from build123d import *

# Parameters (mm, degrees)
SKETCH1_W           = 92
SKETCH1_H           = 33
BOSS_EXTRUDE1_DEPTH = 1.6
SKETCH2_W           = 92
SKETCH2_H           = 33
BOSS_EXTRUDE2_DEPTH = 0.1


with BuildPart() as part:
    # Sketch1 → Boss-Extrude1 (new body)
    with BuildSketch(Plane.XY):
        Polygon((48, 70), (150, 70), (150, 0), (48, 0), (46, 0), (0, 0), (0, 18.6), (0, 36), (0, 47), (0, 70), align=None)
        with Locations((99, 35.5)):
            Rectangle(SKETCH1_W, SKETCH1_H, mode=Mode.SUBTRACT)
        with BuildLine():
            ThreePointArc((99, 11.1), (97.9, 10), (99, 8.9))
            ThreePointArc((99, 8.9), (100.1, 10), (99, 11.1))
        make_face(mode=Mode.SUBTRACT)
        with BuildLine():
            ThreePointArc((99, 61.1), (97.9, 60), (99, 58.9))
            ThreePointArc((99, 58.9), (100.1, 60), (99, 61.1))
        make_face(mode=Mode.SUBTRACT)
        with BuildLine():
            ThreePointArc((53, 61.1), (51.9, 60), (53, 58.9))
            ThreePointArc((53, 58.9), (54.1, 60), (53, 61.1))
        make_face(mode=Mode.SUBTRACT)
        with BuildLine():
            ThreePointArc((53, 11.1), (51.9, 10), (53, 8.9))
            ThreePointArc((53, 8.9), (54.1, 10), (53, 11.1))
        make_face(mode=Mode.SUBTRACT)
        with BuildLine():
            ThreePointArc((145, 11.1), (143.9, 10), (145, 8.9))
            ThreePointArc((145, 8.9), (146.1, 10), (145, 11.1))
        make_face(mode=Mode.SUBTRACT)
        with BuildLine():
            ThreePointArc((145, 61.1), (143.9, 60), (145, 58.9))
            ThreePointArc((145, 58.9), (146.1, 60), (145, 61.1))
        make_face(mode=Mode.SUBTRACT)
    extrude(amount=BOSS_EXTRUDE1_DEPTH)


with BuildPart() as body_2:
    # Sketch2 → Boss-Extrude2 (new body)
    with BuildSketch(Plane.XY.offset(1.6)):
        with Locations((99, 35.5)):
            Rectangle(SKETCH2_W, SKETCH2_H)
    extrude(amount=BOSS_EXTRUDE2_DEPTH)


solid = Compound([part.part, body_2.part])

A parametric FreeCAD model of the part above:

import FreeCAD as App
import Part
import Sketcher
Q = App.Units.Quantity

doc = App.newDocument("Part")
body = doc.addObject("PartDesign::Body", "Body")

# Sketch on XY plane
sketch1 = body.newObject("Sketcher::SketchObject", "Sketch")
sketch1.AttachmentSupport = (doc.getObject("XY_Plane"), [""])
sketch1.MapMode = "FlatFace"
sketch1.addGeometry([
    Part.LineSegment(App.Vector(150, 70, 0), App.Vector(0, 70, 0)),  # 0
    Part.LineSegment(App.Vector(0, 70, 0), App.Vector(0, 0, 0)),  # 1
    Part.LineSegment(App.Vector(0, 0, 0), App.Vector(150, 0, 0)),  # 2
    Part.LineSegment(App.Vector(150, 0, 0), App.Vector(150, 70, 0)),  # 3
    Part.Circle(App.Vector(145, 10, 0), App.Vector(0, 0, 1), 1.1),  # 4
    Part.Circle(App.Vector(99, 10, 0), App.Vector(0, 0, 1), 1.1),  # 5
    Part.Circle(App.Vector(53, 10, 0), App.Vector(0, 0, 1), 1.1),  # 6
    Part.Circle(App.Vector(145, 60, 0), App.Vector(0, 0, 1), 1.1),  # 7
    Part.LineSegment(App.Vector(53, 19, 0), App.Vector(53, 52, 0)),  # 8
    Part.LineSegment(App.Vector(53, 52, 0), App.Vector(145, 52, 0)),  # 9
    Part.LineSegment(App.Vector(145, 52, 0), App.Vector(145, 19, 0)),  # 10
    Part.LineSegment(App.Vector(145, 19, 0), App.Vector(53, 19, 0)),  # 11
    Part.Circle(App.Vector(99, 60, 0), App.Vector(0, 0, 1), 1.1),  # 12
    Part.Circle(App.Vector(53, 60, 0), App.Vector(0, 0, 1), 1.1),  # 13
], False)
sketch1.addConstraint([
    Sketcher.Constraint("Coincident", 0, 2, 1, 1),
    Sketcher.Constraint("Coincident", 1, 2, 2, 1),
    Sketcher.Constraint("Coincident", 2, 2, 3, 1),
    Sketcher.Constraint("Coincident", 3, 2, 0, 1),
    Sketcher.Constraint("Coincident", 8, 2, 9, 1),
    Sketcher.Constraint("Coincident", 9, 2, 10, 1),
    Sketcher.Constraint("Coincident", 10, 2, 11, 1),
    Sketcher.Constraint("Coincident", 11, 2, 8, 1),
    Sketcher.Constraint("Horizontal", 0),
    Sketcher.Constraint("Vertical", 1),
    Sketcher.Constraint("Horizontal", 2),
    Sketcher.Constraint("Vertical", 3),
    Sketcher.Constraint("Vertical", 8),
    Sketcher.Constraint("Horizontal", 9),
    Sketcher.Constraint("Vertical", 10),
    Sketcher.Constraint("Horizontal", 11),
    Sketcher.Constraint("Coincident", 1, 2, -1, 1),
    Sketcher.Constraint("Equal", 4, 5),
    Sketcher.Constraint("Equal", 5, 6),
    Sketcher.Constraint("Equal", 6, 7),
    Sketcher.Constraint("Equal", 7, 12),
    Sketcher.Constraint("Equal", 12, 13),
    Sketcher.Constraint("Horizontal", 4, 3, 5, 3),
    Sketcher.Constraint("Horizontal", 5, 3, 6, 3),
    Sketcher.Constraint("Horizontal", 7, 3, 12, 3),
    Sketcher.Constraint("Horizontal", 12, 3, 13, 3),
    Sketcher.Constraint("Vertical", 4, 3, 7, 3),
    Sketcher.Constraint("Vertical", 5, 3, 12, 3),
    Sketcher.Constraint("Vertical", 6, 3, 13, 3),
    Sketcher.Constraint("Vertical", 13, 3, 8, 2),
    Sketcher.Constraint("Vertical", 7, 3, 9, 2),
    Sketcher.Constraint("Diameter", 4, Q("2.2 mm")),
    Sketcher.Constraint("DistanceX", 0, 2, 0, 1, Q("150 mm")),
    Sketcher.Constraint("DistanceX", 9, 1, 9, 2, Q("92 mm")),
    Sketcher.Constraint("DistanceY", 1, 2, 1, 1, Q("70 mm")),
    Sketcher.Constraint("DistanceY", 8, 1, 8, 2, Q("33 mm")),
    Sketcher.Constraint("DistanceX", -1, 1, 4, 3, Q("145 mm")),
    Sketcher.Constraint("DistanceY", -1, 1, 4, 3, Q("10 mm")),
    Sketcher.Constraint("DistanceX", -1, 1, 5, 3, Q("99 mm")),
    Sketcher.Constraint("DistanceY", -1, 1, 7, 3, Q("60 mm")),
    Sketcher.Constraint("DistanceY", -1, 1, 8, 2, Q("52 mm")),
])
pad1 = body.newObject("PartDesign::Pad", "Pad")
pad1.Profile = sketch1
pad1.Length = 1.6
body2 = doc.addObject("PartDesign::Body", "Body001")

# Sketch on XY plane
sketch2 = body2.newObject("Sketcher::SketchObject", "Sketch001")
sketch2.AttachmentSupport = (doc.getObject("XY_Plane001"), [""])
sketch2.MapMode = "FlatFace"
sketch2.AttachmentOffset = App.Placement(App.Vector(0, 0, 1.6), App.Rotation())
sketch2.addGeometry([
    Part.LineSegment(App.Vector(53, 52, 0), App.Vector(53, 19, 0)),
    Part.LineSegment(App.Vector(53, 19, 0), App.Vector(145, 19, 0)),
    Part.LineSegment(App.Vector(145, 19, 0), App.Vector(145, 52, 0)),
    Part.LineSegment(App.Vector(145, 52, 0), App.Vector(53, 52, 0)),
], False)
sketch2.addConstraint([
    Sketcher.Constraint("Coincident", 0, 2, 1, 1),
    Sketcher.Constraint("Coincident", 1, 2, 2, 1),
    Sketcher.Constraint("Coincident", 2, 2, 3, 1),
    Sketcher.Constraint("Coincident", 3, 2, 0, 1),
    Sketcher.Constraint("Vertical", 0),
    Sketcher.Constraint("Horizontal", 1),
    Sketcher.Constraint("Vertical", 2),
    Sketcher.Constraint("Horizontal", 3),
    Sketcher.Constraint("DistanceX", 1, 1, 1, 2, Q("92 mm")),
    Sketcher.Constraint("DistanceY", 0, 2, 0, 1, Q("33 mm")),
    Sketcher.Constraint("DistanceX", -1, 1, 0, 2, Q("53 mm")),
    Sketcher.Constraint("DistanceY", -1, 1, 0, 2, Q("19 mm")),
])
pad2 = body2.newObject("PartDesign::Pad", "Pad001")
pad2.Profile = sketch2
pad2.Length = 0.1

doc.recompute()
